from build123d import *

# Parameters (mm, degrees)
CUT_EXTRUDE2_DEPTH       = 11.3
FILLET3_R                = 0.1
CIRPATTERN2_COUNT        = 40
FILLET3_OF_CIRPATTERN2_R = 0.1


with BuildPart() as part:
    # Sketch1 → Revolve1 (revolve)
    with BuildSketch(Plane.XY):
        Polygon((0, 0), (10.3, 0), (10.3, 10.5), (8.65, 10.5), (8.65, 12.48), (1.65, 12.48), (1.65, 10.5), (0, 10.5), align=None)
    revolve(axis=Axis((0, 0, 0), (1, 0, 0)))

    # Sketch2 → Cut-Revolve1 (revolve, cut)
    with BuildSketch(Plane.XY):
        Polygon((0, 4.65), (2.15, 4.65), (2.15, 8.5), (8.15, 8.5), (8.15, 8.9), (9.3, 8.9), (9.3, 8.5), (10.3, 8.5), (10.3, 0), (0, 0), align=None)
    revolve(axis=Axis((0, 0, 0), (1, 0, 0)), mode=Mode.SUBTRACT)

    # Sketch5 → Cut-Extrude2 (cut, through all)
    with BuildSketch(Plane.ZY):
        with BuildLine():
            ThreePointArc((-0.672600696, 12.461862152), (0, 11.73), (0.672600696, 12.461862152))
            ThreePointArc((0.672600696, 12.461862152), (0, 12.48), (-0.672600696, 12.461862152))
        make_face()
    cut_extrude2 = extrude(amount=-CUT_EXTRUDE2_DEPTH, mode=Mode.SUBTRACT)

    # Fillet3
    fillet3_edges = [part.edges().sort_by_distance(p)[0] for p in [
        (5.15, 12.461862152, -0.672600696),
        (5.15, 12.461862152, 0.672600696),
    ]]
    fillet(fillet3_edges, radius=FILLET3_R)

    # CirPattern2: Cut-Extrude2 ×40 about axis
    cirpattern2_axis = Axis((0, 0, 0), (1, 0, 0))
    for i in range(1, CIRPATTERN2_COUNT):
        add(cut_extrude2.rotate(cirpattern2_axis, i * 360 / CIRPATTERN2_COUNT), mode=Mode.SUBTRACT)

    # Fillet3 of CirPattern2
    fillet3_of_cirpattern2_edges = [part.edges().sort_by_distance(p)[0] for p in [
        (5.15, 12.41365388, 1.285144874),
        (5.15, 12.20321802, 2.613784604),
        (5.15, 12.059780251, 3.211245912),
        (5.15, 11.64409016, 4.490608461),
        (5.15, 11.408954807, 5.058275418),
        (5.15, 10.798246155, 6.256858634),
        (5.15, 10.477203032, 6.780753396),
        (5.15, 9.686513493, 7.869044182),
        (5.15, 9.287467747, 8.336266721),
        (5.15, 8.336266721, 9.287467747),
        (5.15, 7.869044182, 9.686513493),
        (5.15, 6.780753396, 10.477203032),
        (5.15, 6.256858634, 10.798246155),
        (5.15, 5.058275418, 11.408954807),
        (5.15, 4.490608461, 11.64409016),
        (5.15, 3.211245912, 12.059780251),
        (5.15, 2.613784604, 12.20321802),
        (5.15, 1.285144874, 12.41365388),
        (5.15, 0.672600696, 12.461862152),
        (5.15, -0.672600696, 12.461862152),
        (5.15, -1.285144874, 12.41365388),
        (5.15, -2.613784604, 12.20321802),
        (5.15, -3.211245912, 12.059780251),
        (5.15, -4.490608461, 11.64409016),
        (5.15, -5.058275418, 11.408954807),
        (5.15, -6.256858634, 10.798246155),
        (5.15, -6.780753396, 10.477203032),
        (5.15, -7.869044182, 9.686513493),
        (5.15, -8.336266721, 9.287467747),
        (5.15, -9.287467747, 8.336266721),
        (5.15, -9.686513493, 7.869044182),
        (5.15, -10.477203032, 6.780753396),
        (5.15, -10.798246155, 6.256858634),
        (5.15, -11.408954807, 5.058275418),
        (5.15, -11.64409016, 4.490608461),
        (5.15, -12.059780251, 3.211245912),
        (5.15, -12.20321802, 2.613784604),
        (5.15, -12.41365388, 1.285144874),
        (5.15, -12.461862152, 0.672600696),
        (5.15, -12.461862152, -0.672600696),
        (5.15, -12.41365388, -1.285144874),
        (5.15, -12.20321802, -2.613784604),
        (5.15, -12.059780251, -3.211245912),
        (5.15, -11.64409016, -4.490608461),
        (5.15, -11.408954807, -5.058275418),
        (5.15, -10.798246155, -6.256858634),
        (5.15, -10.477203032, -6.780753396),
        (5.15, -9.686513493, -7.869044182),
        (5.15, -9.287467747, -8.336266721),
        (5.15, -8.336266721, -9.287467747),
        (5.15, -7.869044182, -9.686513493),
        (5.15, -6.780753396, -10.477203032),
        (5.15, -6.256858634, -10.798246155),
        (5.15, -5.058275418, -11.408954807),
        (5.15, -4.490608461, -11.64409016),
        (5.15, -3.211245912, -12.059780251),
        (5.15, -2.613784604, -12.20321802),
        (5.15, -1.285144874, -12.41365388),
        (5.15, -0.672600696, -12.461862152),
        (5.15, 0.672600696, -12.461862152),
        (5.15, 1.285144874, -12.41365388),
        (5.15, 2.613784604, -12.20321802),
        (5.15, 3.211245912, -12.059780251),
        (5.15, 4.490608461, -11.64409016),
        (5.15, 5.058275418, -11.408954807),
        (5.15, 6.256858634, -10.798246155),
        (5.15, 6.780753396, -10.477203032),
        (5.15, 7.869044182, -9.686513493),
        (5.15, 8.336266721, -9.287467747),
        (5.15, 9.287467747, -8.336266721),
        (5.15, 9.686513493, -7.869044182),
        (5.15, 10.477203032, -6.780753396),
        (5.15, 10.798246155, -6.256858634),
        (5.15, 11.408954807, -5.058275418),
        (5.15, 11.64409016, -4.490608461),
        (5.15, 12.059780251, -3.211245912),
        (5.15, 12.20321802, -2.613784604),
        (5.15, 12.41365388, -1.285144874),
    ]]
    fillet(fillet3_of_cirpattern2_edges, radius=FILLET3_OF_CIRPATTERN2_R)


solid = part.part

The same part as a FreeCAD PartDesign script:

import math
import FreeCAD as App
import Part
import Sketcher
from FreeCAD import Vector


def edges_at(feature, points):
    """Names of the edges that pass closest to the given points."""
    edges = feature.Shape.Edges
    near = lambda p: min(range(len(edges)), key=lambda i: edges[i].distToShape(Part.Vertex(*p))[0])
    return sorted({f"Edge{near(p) + 1}" for p in points})


def add_polygon(sketch, points):
    """Adds a closed chain of lines whose ends are joined by coincident constraints."""
    first, n = sketch.GeometryCount, len(points)
    for a, b in zip(points, points[1:] + points[:1]):
        sketch.addGeometry(Part.LineSegment(App.Vector(*a, 0), App.Vector(*b, 0)), False)
    for i in range(n):
        sketch.addConstraint(Sketcher.Constraint("Coincident", first + i, 2, first + (i + 1) % n, 1))

doc = App.newDocument("Part")
body = doc.addObject("PartDesign::Body", "Body")

# Sketch on XY plane
sketch1 = body.newObject("Sketcher::SketchObject", "Sketch")
sketch1.AttachmentSupport = (doc.getObject("XY_Plane"), [""])
sketch1.MapMode = "FlatFace"
add_polygon(sketch1, [(0, 0), (10.3, 0), (10.3, 10.5), (8.7, 10.5), (8.7, 12.5), (1.6, 12.5), (1.6, 10.5), (0, 10.5)])  # lines 0-7
sketch1.addConstraint(Sketcher.Constraint("Horizontal", 0))
sketch1.addConstraint(Sketcher.Constraint("Vertical", 1))
sketch1.addConstraint(Sketcher.Constraint("Horizontal", 2))
sketch1.addConstraint(Sketcher.Constraint("Vertical", 3))
sketch1.addConstraint(Sketcher.Constraint("Horizontal", 4))
sketch1.addConstraint(Sketcher.Constraint("Vertical", 5))
sketch1.addConstraint(Sketcher.Constraint("Horizontal", 6))
sketch1.addConstraint(Sketcher.Constraint("Vertical", 7))
sketch1.addConstraint(Sketcher.Constraint("Coincident", 7, 2, -1, 1))
sketch1.addConstraint(Sketcher.Constraint("Horizontal", 2, 2, 5, 2))
sketch1.addConstraint(Sketcher.Constraint("Equal", 2, 6))
sketch1.addConstraint(Sketcher.Constraint("DistanceX", 4, 2, 4, 1, 7.0))
sketch1.addConstraint(Sketcher.Constraint("DistanceX", 0, 1, 0, 2, 10.3))
sketch1.addConstraint(Sketcher.Constraint("DistanceY", 1, 1, 1, 2, 10.5))
sketch1.addConstraint(Sketcher.Constraint("DistanceY", 3, 1, 3, 2, 1.98))
revolution = body.newObject("PartDesign::Revolution", "Revolution")
revolution.Profile = sketch1
revolution.ReferenceAxis = (sketch1, ["H_Axis"])
revolution.Angle = 360

# Sketch on XY plane
sketch2 = body.newObject("Sketcher::SketchObject", "Sketch001")
sketch2.AttachmentSupport = (doc.getObject("XY_Plane"), [""])
sketch2.MapMode = "FlatFace"
add_polygon(sketch2, [(2.15, 4.65), (0, 4.65), (0, 0), (10.3, 0), (10.3, 8.5), (9.3, 8.5), (9.3, 8.9), (8.15, 8.9), (8.15, 8.5), (2.15, 8.5)])  # lines 0-9
sketch2.addConstraint(Sketcher.Constraint("Horizontal", 0))
sketch2.addConstraint(Sketcher.Constraint("Vertical", 1))
sketch2.addConstraint(Sketcher.Constraint("Horizontal", 2))
sketch2.addConstraint(Sketcher.Constraint("Vertical", 3))
sketch2.addConstraint(Sketcher.Constraint("Horizontal", 4))
sketch2.addConstraint(Sketcher.Constraint("Vertical", 5))
sketch2.addConstraint(Sketcher.Constraint("Horizontal", 6))
sketch2.addConstraint(Sketcher.Constraint("Vertical", 7))
sketch2.addConstraint(Sketcher.Constraint("Horizontal", 8))
sketch2.addConstraint(Sketcher.Constraint("Vertical", 9))
sketch2.addConstraint(Sketcher.Constraint("Coincident", 1, 2, -1, 1))
sketch2.addConstraint(Sketcher.Constraint("Horizontal", 4, 2, 7, 2))
sketch2.addConstraint(Sketcher.Constraint("DistanceX", 4, 2, 4, 1, 1.0))
sketch2.addConstraint(Sketcher.Constraint("DistanceX", 8, 2, 8, 1, 6.0))
sketch2.addConstraint(Sketcher.Constraint("DistanceX", 2, 1, 2, 2, 10.3))
sketch2.addConstraint(Sketcher.Constraint("DistanceY", 3, 1, 3, 2, 8.5))
sketch2.addConstraint(Sketcher.Constraint("DistanceY", 5, 1, 5, 2, 0.4))
sketch2.addConstraint(Sketcher.Constraint("DistanceX", 0, 2, 0, 1, 2.15))
sketch2.addConstraint(Sketcher.Constraint("DistanceY", 1, 2, 1, 1, 4.65))
groove = body.newObject("PartDesign::Groove", "Groove")
groove.Profile = sketch2
groove.ReferenceAxis = (sketch2, ["H_Axis"])
groove.Angle = 360

# Sketch on YZ plane
sketch3 = body.newObject("Sketcher::SketchObject", "Sketch002")
sketch3.AttachmentSupport = (doc.getObject("YZ_Plane"), [""])
sketch3.MapMode = "FlatFace"
sketch3.addGeometry(Part.ArcOfCircle(Part.Circle(Vector(12.4, 0, 0), Vector(0, 0, 1), 0.7), math.radians(85), math.radians(275)), False)
sketch3.addGeometry(Part.ArcOfCircle(Part.Circle(Vector(0, 0, 0), Vector(0, 0, 1), 12.5), math.radians(-3.09), math.radians(3.09)), False)
sketch3.addConstraint(Sketcher.Constraint("Coincident", 0, 1, 1, 2))
sketch3.addConstraint(Sketcher.Constraint("Coincident", 1, 1, 0, 2))
sketch3.addConstraint(Sketcher.Constraint("Coincident", 1, 3, -1, 1))
sketch3.addConstraint(Sketcher.Constraint("PointOnObject", 0, 3, -1))
sketch3.addConstraint(Sketcher.Constraint("Radius", 1, 12.48))
sketch3.addConstraint(Sketcher.Constraint("Radius", 0, 0.675))
sketch3.addConstraint(Sketcher.Constraint("DistanceX", -1, 1, 0, 3, 12.405))
pocket1 = body.newObject("PartDesign::Pocket", "Pocket")
pocket1.Profile = sketch3
pocket1.Type = "ThroughAll"
pocket1.Reversed = True
doc.recompute()

fillet = body.newObject("PartDesign::Fillet", "Fillet")
fillet.Base = (pocket1, edges_at(pocket1, [(5.15, 12.462, -0.673), (5.15, 12.462, 0.673)]))
fillet.Radius = 0.1
doc.recompute()

polarpattern = body.newObject("PartDesign::PolarPattern", "PolarPattern")
polarpattern.Originals = [pocket1]
polarpattern.Axis = (doc.getObject("X_Axis"), [""])
polarpattern.Angle = 360
polarpattern.Occurrences = 40
body.Tip = polarpattern
doc.recompute()

fillet2 = body.newObject("PartDesign::Fillet", "Fillet001")
fillet2.Base = (polarpattern, edges_at(polarpattern, [
    (5.15, 12.414, 1.285),
    (5.15, 12.203, 2.614),
    (5.15, 12.06, 3.211),
    (5.15, 11.644, 4.491),
    (5.15, 11.409, 5.058),
    (5.15, 10.798, 6.257),
    (5.15, 10.477, 6.781),
    (5.15, 9.687, 7.869),
    (5.15, 9.287, 8.336),
    (5.15, 8.336, 9.287),
    (5.15, 7.869, 9.687),
    (5.15, 6.781, 10.477),
    (5.15, 6.257, 10.798),
    (5.15, 5.058, 11.409),
    (5.15, 4.491, 11.644),
    (5.15, 3.211, 12.06),
    (5.15, 2.614, 12.203),
    (5.15, 1.285, 12.414),
    (5.15, 0.673, 12.462),
    (5.15, -0.673, 12.462),
    (5.15, -1.285, 12.414),
    (5.15, -2.614, 12.203),
    (5.15, -3.211, 12.06),
    (5.15, -4.491, 11.644),
    (5.15, -5.058, 11.409),
    (5.15, -6.257, 10.798),
    (5.15, -6.781, 10.477),
    (5.15, -7.869, 9.687),
    (5.15, -8.336, 9.287),
    (5.15, -9.287, 8.336),
    (5.15, -9.687, 7.869),
    (5.15, -10.477, 6.781),
    (5.15, -10.798, 6.257),
    (5.15, -11.409, 5.058),
    (5.15, -11.644, 4.491),
    (5.15, -12.06, 3.211),
    (5.15, -12.203, 2.614),
    (5.15, -12.414, 1.285),
    (5.15, -12.462, 0.673),
    (5.15, -12.462, -0.673),
    (5.15, -12.414, -1.285),
    (5.15, -12.203, -2.614),
    (5.15, -12.06, -3.211),
    (5.15, -11.644, -4.491),
    (5.15, -11.409, -5.058),
    (5.15, -10.798, -6.257),
    (5.15, -10.477, -6.781),
    (5.15, -9.687, -7.869),
    (5.15, -9.287, -8.336),
    (5.15, -8.336, -9.287),
    (5.15, -7.869, -9.687),
    (5.15, -6.781, -10.477),
    (5.15, -6.257, -10.798),
    (5.15, -5.058, -11.409),
    (5.15, -4.491, -11.644),
    (5.15, -3.211, -12.06),
    (5.15, -2.614, -12.203),
    (5.15, -1.285, -12.414),
    (5.15, -0.673, -12.462),
    (5.15, 0.673, -12.462),
    (5.15, 1.285, -12.414),
    (5.15, 2.614, -12.203),
    (5.15, 3.211, -12.06),
    (5.15, 4.491, -11.644),
    (5.15, 5.058, -11.409),
    (5.15, 6.257, -10.798),
    (5.15, 6.781, -10.477),
    (5.15, 7.869, -9.687),
    (5.15, 8.336, -9.287),
    (5.15, 9.287, -8.336),
    (5.15, 9.687, -7.869),
    (5.15, 10.477, -6.781),
    (5.15, 10.798, -6.257),
    (5.15, 11.409, -5.058),
    (5.15, 11.644, -4.491),
    (5.15, 12.06, -3.211),
    (5.15, 12.203, -2.614),
    (5.15, 12.414, -1.285),
]))
fillet2.Radius = 0.1

doc.recompute()
